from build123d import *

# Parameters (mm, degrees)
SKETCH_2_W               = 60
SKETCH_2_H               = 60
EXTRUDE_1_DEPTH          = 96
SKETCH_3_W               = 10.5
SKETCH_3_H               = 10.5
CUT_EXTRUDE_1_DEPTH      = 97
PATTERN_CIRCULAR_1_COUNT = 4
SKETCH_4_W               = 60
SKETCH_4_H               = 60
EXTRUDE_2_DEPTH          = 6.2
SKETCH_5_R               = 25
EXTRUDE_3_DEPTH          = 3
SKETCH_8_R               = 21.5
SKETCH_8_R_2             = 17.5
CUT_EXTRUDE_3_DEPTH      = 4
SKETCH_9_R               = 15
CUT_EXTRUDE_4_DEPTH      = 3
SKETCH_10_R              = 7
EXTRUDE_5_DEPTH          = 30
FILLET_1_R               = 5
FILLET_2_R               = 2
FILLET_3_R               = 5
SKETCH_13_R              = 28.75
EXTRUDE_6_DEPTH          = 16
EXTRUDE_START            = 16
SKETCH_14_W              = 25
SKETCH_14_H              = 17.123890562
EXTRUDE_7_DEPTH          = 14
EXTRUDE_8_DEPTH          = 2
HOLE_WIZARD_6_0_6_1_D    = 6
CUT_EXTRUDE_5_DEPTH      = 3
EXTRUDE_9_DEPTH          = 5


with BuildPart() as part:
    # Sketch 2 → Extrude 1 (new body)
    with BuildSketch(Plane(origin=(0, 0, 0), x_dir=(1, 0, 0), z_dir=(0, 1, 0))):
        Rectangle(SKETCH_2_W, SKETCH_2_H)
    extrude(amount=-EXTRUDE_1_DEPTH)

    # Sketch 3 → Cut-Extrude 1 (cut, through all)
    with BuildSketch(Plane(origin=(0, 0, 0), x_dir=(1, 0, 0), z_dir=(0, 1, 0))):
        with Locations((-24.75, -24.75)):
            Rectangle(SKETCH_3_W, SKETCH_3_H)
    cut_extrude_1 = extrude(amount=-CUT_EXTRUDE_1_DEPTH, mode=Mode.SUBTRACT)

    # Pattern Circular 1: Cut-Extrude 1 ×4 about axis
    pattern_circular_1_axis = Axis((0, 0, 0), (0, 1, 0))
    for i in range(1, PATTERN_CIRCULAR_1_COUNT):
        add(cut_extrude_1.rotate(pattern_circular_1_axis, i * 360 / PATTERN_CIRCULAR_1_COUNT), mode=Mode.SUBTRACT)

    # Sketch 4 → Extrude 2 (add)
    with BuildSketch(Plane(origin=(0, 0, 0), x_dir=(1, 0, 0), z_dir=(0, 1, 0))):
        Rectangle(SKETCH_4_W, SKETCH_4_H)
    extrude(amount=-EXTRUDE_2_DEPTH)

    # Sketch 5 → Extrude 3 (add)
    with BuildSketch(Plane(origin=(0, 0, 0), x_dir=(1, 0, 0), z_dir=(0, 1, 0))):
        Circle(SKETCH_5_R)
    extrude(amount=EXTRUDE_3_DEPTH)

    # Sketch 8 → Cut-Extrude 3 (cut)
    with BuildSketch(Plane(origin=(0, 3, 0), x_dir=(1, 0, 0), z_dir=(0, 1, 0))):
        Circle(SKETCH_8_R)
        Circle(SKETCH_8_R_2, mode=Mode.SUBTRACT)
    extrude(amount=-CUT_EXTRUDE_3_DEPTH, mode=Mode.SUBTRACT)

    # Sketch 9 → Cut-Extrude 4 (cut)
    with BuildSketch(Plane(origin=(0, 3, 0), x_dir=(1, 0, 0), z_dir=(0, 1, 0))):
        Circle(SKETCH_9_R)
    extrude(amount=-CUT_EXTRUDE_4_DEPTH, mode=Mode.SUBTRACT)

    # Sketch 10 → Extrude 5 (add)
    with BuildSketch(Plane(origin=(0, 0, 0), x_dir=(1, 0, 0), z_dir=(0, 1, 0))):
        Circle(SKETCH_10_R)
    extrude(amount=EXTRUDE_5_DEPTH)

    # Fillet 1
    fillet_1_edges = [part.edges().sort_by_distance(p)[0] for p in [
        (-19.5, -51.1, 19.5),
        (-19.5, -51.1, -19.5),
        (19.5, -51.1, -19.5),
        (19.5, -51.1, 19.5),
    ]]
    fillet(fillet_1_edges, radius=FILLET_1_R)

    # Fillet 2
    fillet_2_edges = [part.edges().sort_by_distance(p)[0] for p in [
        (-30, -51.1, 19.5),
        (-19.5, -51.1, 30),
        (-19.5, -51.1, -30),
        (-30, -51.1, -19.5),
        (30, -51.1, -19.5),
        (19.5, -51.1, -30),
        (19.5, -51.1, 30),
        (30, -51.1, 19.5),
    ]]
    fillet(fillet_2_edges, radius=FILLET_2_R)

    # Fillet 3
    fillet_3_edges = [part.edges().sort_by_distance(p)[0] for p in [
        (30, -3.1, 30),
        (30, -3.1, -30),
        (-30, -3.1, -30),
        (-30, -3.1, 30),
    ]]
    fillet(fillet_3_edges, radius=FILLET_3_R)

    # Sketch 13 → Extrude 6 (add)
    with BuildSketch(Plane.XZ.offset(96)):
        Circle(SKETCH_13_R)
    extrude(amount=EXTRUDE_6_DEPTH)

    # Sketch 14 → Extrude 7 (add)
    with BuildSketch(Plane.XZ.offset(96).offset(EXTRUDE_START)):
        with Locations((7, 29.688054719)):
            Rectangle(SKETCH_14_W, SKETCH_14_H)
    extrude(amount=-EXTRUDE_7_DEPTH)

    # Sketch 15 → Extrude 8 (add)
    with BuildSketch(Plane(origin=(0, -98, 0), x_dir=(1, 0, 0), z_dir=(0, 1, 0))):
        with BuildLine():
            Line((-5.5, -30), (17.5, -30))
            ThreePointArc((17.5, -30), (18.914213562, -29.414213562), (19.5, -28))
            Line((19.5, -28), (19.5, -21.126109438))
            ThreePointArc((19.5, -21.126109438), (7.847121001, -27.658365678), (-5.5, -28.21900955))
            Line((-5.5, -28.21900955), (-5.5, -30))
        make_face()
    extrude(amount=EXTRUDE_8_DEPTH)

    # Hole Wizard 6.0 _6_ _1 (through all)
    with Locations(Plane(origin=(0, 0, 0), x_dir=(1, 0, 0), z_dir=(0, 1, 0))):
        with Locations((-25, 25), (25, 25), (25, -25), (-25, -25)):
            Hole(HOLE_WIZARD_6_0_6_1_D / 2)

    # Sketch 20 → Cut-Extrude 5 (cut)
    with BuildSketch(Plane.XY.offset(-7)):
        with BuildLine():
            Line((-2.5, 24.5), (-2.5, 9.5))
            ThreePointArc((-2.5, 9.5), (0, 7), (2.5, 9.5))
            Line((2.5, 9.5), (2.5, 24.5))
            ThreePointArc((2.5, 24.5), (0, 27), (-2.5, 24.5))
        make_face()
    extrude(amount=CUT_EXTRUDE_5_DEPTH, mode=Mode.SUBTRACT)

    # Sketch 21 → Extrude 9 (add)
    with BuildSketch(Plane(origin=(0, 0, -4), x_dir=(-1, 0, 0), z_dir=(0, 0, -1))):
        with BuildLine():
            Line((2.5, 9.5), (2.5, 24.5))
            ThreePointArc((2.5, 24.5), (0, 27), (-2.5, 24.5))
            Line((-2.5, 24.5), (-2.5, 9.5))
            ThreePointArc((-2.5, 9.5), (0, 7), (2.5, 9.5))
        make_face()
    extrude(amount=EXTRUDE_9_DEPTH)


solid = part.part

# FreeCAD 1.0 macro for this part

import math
import FreeCAD as App
import Part
import Sketcher
from FreeCAD import Vector
Q = App.Units.Quantity


def edges_at(feature, points):
    """Names of the edges that pass closest to the given points."""
    edges = feature.Shape.Edges
    near = lambda p: min(range(len(edges)), key=lambda i: edges[i].distToShape(Part.Vertex(*p))[0])
    return sorted({f"Edge{near(p) + 1}" for p in points})


def add_polygon(sketch, points):
    """Adds a closed chain of lines whose ends are joined by coincident constraints."""
    first, n = sketch.GeometryCount, len(points)
    for a, b in zip(points, points[1:] + points[:1]):
        sketch.addGeometry(Part.LineSegment(App.Vector(*a, 0), App.Vector(*b, 0)), False)
    for i in range(n):
        sketch.addConstraint(Sketcher.Constraint("Coincident", first + i, 2, first + (i + 1) % n, 1))

doc = App.newDocument("Part")
body = doc.addObject("PartDesign::Body", "Body")

# Sketch on XZ plane
sketch1 = doc.addObject("Sketcher::SketchObject", "Sketch")
body.addObject(sketch1)
sketch1.AttachmentSupport = (doc.XZ_Plane, [""])
sketch1.MapMode = "FlatFace"
add_polygon(sketch1, [(-30, -30), (-30, 30), (30, 30), (30, -30)])  # lines 0-3
sketch1.addConstraint([
    Sketcher.Constraint("Vertical", 0),
    Sketcher.Constraint("Horizontal", 1),
    Sketcher.Constraint("Vertical", 2),
    Sketcher.Constraint("Horizontal", 3),
    Sketcher.Constraint("Symmetric", 0, 2, 2, 2, -1, 1),
    Sketcher.Constraint("Equal", 3, 0),
    Sketcher.Constraint("DistanceX", 1, 1, 1, 2, Q("60 mm")),
])
pad1 = doc.addObject("PartDesign::Pad", "Pad")
body.addObject(pad1)
pad1.Profile = sketch1
pad1.Length = 96

# Sketch on XZ plane
sketch2 = doc.addObject("Sketcher::SketchObject", "Sketch001")
body.addObject(sketch2)
sketch2.AttachmentSupport = (doc.XZ_Plane, [""])
sketch2.MapMode = "FlatFace"
add_polygon(sketch2, [(-30, 20), (-30, 30), (-20, 30), (-20, 20)])  # lines 0-3
sketch2.addConstraint([
    Sketcher.Constraint("Vertical", 0),
    Sketcher.Constraint("Horizontal", 1),
    Sketcher.Constraint("Vertical", 2),
    Sketcher.Constraint("Horizontal", 3),
    Sketcher.Constraint("Equal", 3, 0),
    Sketcher.Constraint("DistanceX", 1, 1, 1, 2, Q("10.5 mm")),
    Sketcher.Constraint("DistanceX", 0, 2, -1, 1, Q("30 mm")),
    Sketcher.Constraint("DistanceY", -1, 1, 0, 2, Q("30 mm")),
])
pocket1 = doc.addObject("PartDesign::Pocket", "Pocket")
body.addObject(pocket1)
pocket1.Profile = sketch2
pocket1.Type = "ThroughAll"
pocket1.Reversed = True
doc.recompute()

polarpattern = doc.addObject("PartDesign::PolarPattern", "PolarPattern")
body.addObject(polarpattern)
polarpattern.Originals = [pocket1]
polarpattern.Axis = (doc.Y_Axis, [""])
polarpattern.Angle = 360
polarpattern.Occurrences = 4
body.Tip = polarpattern

# Sketch on XZ plane
sketch3 = doc.addObject("Sketcher::SketchObject", "Sketch002")
body.addObject(sketch3)
sketch3.AttachmentSupport = (doc.XZ_Plane, [""])
sketch3.MapMode = "FlatFace"
add_polygon(sketch3, [(-30, -30), (-30, 30), (30, 30), (30, -30)])  # lines 0-3
sketch3.addConstraint([
    Sketcher.Constraint("Vertical", 0),
    Sketcher.Constraint("Horizontal", 1),
    Sketcher.Constraint("Vertical", 2),
    Sketcher.Constraint("Horizontal", 3),
    Sketcher.Constraint("Symmetric", 0, 2, 2, 2, -1, 1),
    Sketcher.Constraint("Equal", 3, 0),
    Sketcher.Constraint("DistanceX", 1, 1, 1, 2, Q("60 mm")),
])
pad2 = doc.addObject("PartDesign::Pad", "Pad001")
body.addObject(pad2)
pad2.Profile = sketch3
pad2.Length = 6.2

# Sketch on XZ plane
sketch4 = doc.addObject("Sketcher::SketchObject", "Sketch003")
body.addObject(sketch4)
sketch4.AttachmentSupport = (doc.XZ_Plane, [""])
sketch4.MapMode = "FlatFace"
sketch4.addGeometry(Part.Circle(Vector(0, 0, 0), Vector(0, 0, 1), 25), False)
sketch4.addConstraint([
    Sketcher.Constraint("Coincident", 0, 3, -1, 1),
    Sketcher.Constraint("Diameter", 0, Q("50 mm")),
])
pad3 = doc.addObject("PartDesign::Pad", "Pad002")
body.addObject(pad3)
pad3.Profile = sketch4
pad3.Length = 3
pad3.Reversed = True

# Sketch on XZ plane
sketch5 = doc.addObject("Sketcher::SketchObject", "Sketch004")
body.addObject(sketch5)
sketch5.AttachmentSupport = (doc.XZ_Plane, [""])
sketch5.MapMode = "FlatFace"
sketch5.AttachmentOffset = App.Placement(Vector(0, 0, -3), App.Rotation())
sketch5.addGeometry([
    Part.Circle(Vector(0, 0, 0), Vector(0, 0, 1), 22),
    Part.Circle(Vector(0, 0, 0), Vector(0, 0, 1), 18),
], False)
sketch5.addConstraint([
    Sketcher.Constraint("Coincident", 0, 3, -1, 1),
    Sketcher.Constraint("Coincident", 1, 3, -1, 1),
    Sketcher.Constraint("Diameter", 0, Q("43 mm")),
    Sketcher.Constraint("Diameter", 1, Q("35 mm")),
])
pocket2 = doc.addObject("PartDesign::Pocket", "Pocket001")
body.addObject(pocket2)
pocket2.Profile = sketch5
pocket2.Length = 4
pocket2.Reversed = True

# Sketch on XZ plane
sketch6 = doc.addObject("Sketcher::SketchObject", "Sketch005")
body.addObject(sketch6)
sketch6.AttachmentSupport = (doc.XZ_Plane, [""])
sketch6.MapMode = "FlatFace"
sketch6.AttachmentOffset = App.Placement(Vector(0, 0, -3), App.Rotation())
sketch6.addGeometry(Part.Circle(Vector(0, 0, 0), Vector(0, 0, 1), 15), False)
sketch6.addConstraint([
    Sketcher.Constraint("Coincident", 0, 3, -1, 1),
    Sketcher.Constraint("Diameter", 0, Q("30 mm")),
])
pocket3 = doc.addObject("PartDesign::Pocket", "Pocket002")
body.addObject(pocket3)
pocket3.Profile = sketch6
pocket3.Length = 3
pocket3.Reversed = True

# Sketch on XZ plane
sketch7 = doc.addObject("Sketcher::SketchObject", "Sketch006")
body.addObject(sketch7)
sketch7.AttachmentSupport = (doc.XZ_Plane, [""])
sketch7.MapMode = "FlatFace"
sketch7.addGeometry(Part.Circle(Vector(0, 0, 0), Vector(0, 0, 1), 7), False)
sketch7.addConstraint([
    Sketcher.Constraint("Coincident", 0, 3, -1, 1),
    Sketcher.Constraint("Diameter", 0, Q("14 mm")),
])
pad4 = doc.addObject("PartDesign::Pad", "Pad003")
body.addObject(pad4)
pad4.Profile = sketch7
pad4.Length = 30
pad4.Reversed = True
doc.recompute()

fillet = doc.addObject("PartDesign::Fillet", "Fillet")
body.addObject(fillet)
fillet.Base = (pad4, edges_at(pad4, [
    (-19.5, -51.1, 19.5),
    (-19.5, -51.1, -19.5),
    (19.5, -51.1, -19.5),
    (19.5, -51.1, 19.5),
]))
fillet.Radius = 5
doc.recompute()

fillet2 = doc.addObject("PartDesign::Fillet", "Fillet001")
body.addObject(fillet2)
fillet2.Base = (fillet, edges_at(fillet, [
    (-30, -51.1, 19.5),
    (-19.5, -51.1, 30),
    (-19.5, -51.1, -30),
    (-30, -51.1, -19.5),
    (30, -51.1, -19.5),
    (19.5, -51.1, -30),
    (19.5, -51.1, 30),
    (30, -51.1, 19.5),
]))
fillet2.Radius = 2
doc.recompute()

fillet3 = doc.addObject("PartDesign::Fillet", "Fillet002")
body.addObject(fillet3)
fillet3.Base = (fillet2, edges_at(fillet2, [
    (30, -3.1, 30),
    (30, -3.1, -30),
    (-30, -3.1, -30),
    (-30, -3.1, 30),
]))
fillet3.Radius = 5

# Sketch on XZ plane
sketch8 = doc.addObject("Sketcher::SketchObject", "Sketch007")
body.addObject(sketch8)
sketch8.AttachmentSupport = (doc.XZ_Plane, [""])
sketch8.MapMode = "FlatFace"
sketch8.AttachmentOffset = App.Placement(Vector(0, 0, 96), App.Rotation())
sketch8.addGeometry(Part.Circle(Vector(0, 0, 0), Vector(0, 0, 1), 29), False)
sketch8.addConstraint([
    Sketcher.Constraint("Coincident", 0, 3, -1, 1),
    Sketcher.Constraint("Diameter", 0, Q("57.5 mm")),
])
pad5 = doc.addObject("PartDesign::Pad", "Pad004")
body.addObject(pad5)
pad5.Profile = sketch8
pad5.Length = 16

# Sketch on XZ plane
sketch9 = doc.addObject("Sketcher::SketchObject", "Sketch008")
body.addObject(sketch9)
sketch9.AttachmentSupport = (doc.XZ_Plane, [""])
sketch9.MapMode = "FlatFace"
sketch9.AttachmentOffset = App.Placement(Vector(0, 0, 112), App.Rotation())
add_polygon(sketch9, [(-6, 38), (-6, 21), (20, 21), (20, 38)])  # lines 0-3
sketch9.addConstraint([
    Sketcher.Constraint("Vertical", 0),
    Sketcher.Constraint("Horizontal", 1),
    Sketcher.Constraint("Vertical", 2),
    Sketcher.Constraint("Horizontal", 3),
    Sketcher.Constraint("DistanceX", 1, 1, 1, 2, Q("25 mm")),
    Sketcher.Constraint("DistanceX", 0, 2, -1, 1, Q("5.5 mm")),
    Sketcher.Constraint("DistanceY", -1, 1, 2, 2, Q("38.25 mm")),
    Sketcher.Constraint("DistanceY", 0, 2, 0, 1, Q("17.123891 mm")),
])
pad6 = doc.addObject("PartDesign::Pad", "Pad005")
body.addObject(pad6)
pad6.Profile = sketch9
pad6.Length = 14
pad6.Reversed = True

# Sketch on XZ plane
sketch10 = doc.addObject("Sketcher::SketchObject", "Sketch009")
body.addObject(sketch10)
sketch10.AttachmentSupport = (doc.XZ_Plane, [""])
sketch10.MapMode = "FlatFace"
sketch10.AttachmentOffset = App.Placement(Vector(0, 0, 98), App.Rotation())
sketch10.addGeometry([
    Part.LineSegment(Vector(-5.5, 30, 0), Vector(17.5, 30, 0)),  # 0
    Part.ArcOfCircle(Part.Circle(Vector(17.5, 28, 0), Vector(0, 0, 1), 2), math.radians(0), math.radians(90)),  # 1
    Part.LineSegment(Vector(19.5, 28, 0), Vector(19.5, 21.1, 0)),  # 2
    Part.ArcOfCircle(Part.Circle(Vector(0, 0, 0), Vector(0, 0, 1), 28.8), math.radians(47), math.radians(101)),  # 3
    Part.LineSegment(Vector(-5.5, 28.2, 0), Vector(-5.5, 30, 0)),  # 4
], False)
sketch10.addConstraint([
    Sketcher.Constraint("Tangent", 0, 2, 1, 2),
    Sketcher.Constraint("Tangent", 1, 1, 2, 1),
    Sketcher.Constraint("Coincident", 2, 2, 3, 1),
    Sketcher.Constraint("Coincident", 3, 2, 4, 1),
    Sketcher.Constraint("Coincident", 4, 2, 0, 1),
    Sketcher.Constraint("Horizontal", 0),
    Sketcher.Constraint("Vertical", 2),
    Sketcher.Constraint("Vertical", 4),
    Sketcher.Constraint("Coincident", 3, 3, -1, 1),
    Sketcher.Constraint("Radius", 1, Q("2 mm")),
    Sketcher.Constraint("DistanceX", 0, 1, 0, 2, Q("23 mm")),
    Sketcher.Constraint("Radius", 3, Q("28.75 mm")),
    Sketcher.Constraint("DistanceY", -1, 1, 1, 3, Q("28 mm")),
    Sketcher.Constraint("DistanceX", -1, 1, 1, 3, Q("17.5 mm")),
])
pad7 = doc.addObject("PartDesign::Pad", "Pad006")
body.addObject(pad7)
pad7.Profile = sketch10
pad7.Length = 2
pad7.Reversed = True

# Sketch on XZ plane
sketch11 = doc.addObject("Sketcher::SketchObject", "Sketch010")
body.addObject(sketch11)
sketch11.AttachmentSupport = (doc.XZ_Plane, [""])
sketch11.MapMode = "FlatFace"
sketch11.addGeometry([
    Part.Circle(Vector(-25, -25, 0), Vector(0, 0, 1), 3),
    Part.Circle(Vector(25, -25, 0), Vector(0, 0, 1), 3),
    Part.Circle(Vector(25, 25, 0), Vector(0, 0, 1), 3),
    Part.Circle(Vector(-25, 25, 0), Vector(0, 0, 1), 3),
], False)
sketch11.addConstraint([
    Sketcher.Constraint("Equal", 0, 1),
    Sketcher.Constraint("Equal", 1, 2),
    Sketcher.Constraint("Equal", 2, 3),
    Sketcher.Constraint("Symmetric", 0, 3, 2, 3, -1, 1),
    Sketcher.Constraint("Symmetric", 1, 3, 3, 3, -1, 1),
    Sketcher.Constraint("Symmetric", 0, 3, 1, 3, -2),
    Sketcher.Constraint("Diameter", 0, Q("6 mm")),
    Sketcher.Constraint("DistanceX", 0, 3, -1, 1, Q("25 mm")),
    Sketcher.Constraint("DistanceY", 0, 3, -1, 1, Q("25 mm")),
])
doc.recompute()
hole = doc.addObject("PartDesign::Hole", "Hole")
body.addObject(hole)
hole.Profile = sketch11
hole.ThreadType = "None"
hole.Diameter = 6
hole.DepthType = "ThroughAll"
hole.Reversed = True

# Sketch on XY plane
sketch12 = doc.addObject("Sketcher::SketchObject", "Sketch011")
body.addObject(sketch12)
sketch12.AttachmentSupport = (doc.XY_Plane, [""])
sketch12.MapMode = "FlatFace"
sketch12.AttachmentOffset = App.Placement(Vector(0, 0, -7), App.Rotation())
sketch12.addGeometry([
    Part.LineSegment(Vector(-2.5, 24.5, 0), Vector(-2.5, 9.5, 0)),
    Part.ArcOfCircle(Part.Circle(Vector(0, 9.5, 0), Vector(0, 0, 1), 2.5), math.radians(180), math.radians(360)),
    Part.LineSegment(Vector(2.5, 9.5, 0), Vector(2.5, 24.5, 0)),
    Part.ArcOfCircle(Part.Circle(Vector(0, 24.5, 0), Vector(0, 0, 1), 2.5), math.radians(0), math.radians(180)),
], False)
sketch12.addConstraint([
    Sketcher.Constraint("Tangent", 0, 2, 1, 1),
    Sketcher.Constraint("Tangent", 1, 2, 2, 1),
    Sketcher.Constraint("Tangent", 2, 2, 3, 1),
    Sketcher.Constraint("Tangent", 3, 2, 0, 1),
    Sketcher.Constraint("Vertical", 0),
    Sketcher.Constraint("Vertical", 2),
    Sketcher.Constraint("PointOnObject", 1, 3, -2),
    Sketcher.Constraint("Radius", 1, Q("2.5 mm")),
    Sketcher.Constraint("DistanceY", 0, 2, 0, 1, Q("15 mm")),
    Sketcher.Constraint("DistanceY", -1, 1, 1, 3, Q("9.5 mm")),
])
pocket4 = doc.addObject("PartDesign::Pocket", "Pocket003")
body.addObject(pocket4)
pocket4.Profile = sketch12
pocket4.Length = 3
pocket4.Reversed = True

# Sketch on XY plane
sketch13 = doc.addObject("Sketcher::SketchObject", "Sketch012")
body.addObject(sketch13)
sketch13.AttachmentSupport = (doc.XY_Plane, [""])
sketch13.MapMode = "FlatFace"
sketch13.AttachmentOffset = App.Placement(Vector(0, 0, -4), App.Rotation())
sketch13.addGeometry([
    Part.LineSegment(Vector(-2.5, 9.5, 0), Vector(-2.5, 24.5, 0)),
    Part.ArcOfCircle(Part.Circle(Vector(0, 24.5, 0), Vector(0, 0, 1), 2.5), math.radians(0), math.radians(180)),
    Part.LineSegment(Vector(2.5, 24.5, 0), Vector(2.5, 9.5, 0)),
    Part.ArcOfCircle(Part.Circle(Vector(0, 9.5, 0), Vector(0, 0, 1), 2.5), math.radians(180), math.radians(360)),
], False)
sketch13.addConstraint([
    Sketcher.Constraint("Tangent", 0, 2, 1, 2),
    Sketcher.Constraint("Tangent", 1, 1, 2, 1),
    Sketcher.Constraint("Tangent", 2, 2, 3, 2),
    Sketcher.Constraint("Tangent", 3, 1, 0, 1),
    Sketcher.Constraint("Vertical", 0),
    Sketcher.Constraint("Vertical", 2),
    Sketcher.Constraint("PointOnObject", 1, 3, -2),
    Sketcher.Constraint("Radius", 1, Q("2.5 mm")),
    Sketcher.Constraint("DistanceY", 0, 1, 0, 2, Q("15 mm")),
    Sketcher.Constraint("DistanceY", -1, 1, 1, 3, Q("24.5 mm")),
])
pad8 = doc.addObject("PartDesign::Pad", "Pad007")
body.addObject(pad8)
pad8.Profile = sketch13
pad8.Length = 5
pad8.Reversed = True

doc.recompute()
